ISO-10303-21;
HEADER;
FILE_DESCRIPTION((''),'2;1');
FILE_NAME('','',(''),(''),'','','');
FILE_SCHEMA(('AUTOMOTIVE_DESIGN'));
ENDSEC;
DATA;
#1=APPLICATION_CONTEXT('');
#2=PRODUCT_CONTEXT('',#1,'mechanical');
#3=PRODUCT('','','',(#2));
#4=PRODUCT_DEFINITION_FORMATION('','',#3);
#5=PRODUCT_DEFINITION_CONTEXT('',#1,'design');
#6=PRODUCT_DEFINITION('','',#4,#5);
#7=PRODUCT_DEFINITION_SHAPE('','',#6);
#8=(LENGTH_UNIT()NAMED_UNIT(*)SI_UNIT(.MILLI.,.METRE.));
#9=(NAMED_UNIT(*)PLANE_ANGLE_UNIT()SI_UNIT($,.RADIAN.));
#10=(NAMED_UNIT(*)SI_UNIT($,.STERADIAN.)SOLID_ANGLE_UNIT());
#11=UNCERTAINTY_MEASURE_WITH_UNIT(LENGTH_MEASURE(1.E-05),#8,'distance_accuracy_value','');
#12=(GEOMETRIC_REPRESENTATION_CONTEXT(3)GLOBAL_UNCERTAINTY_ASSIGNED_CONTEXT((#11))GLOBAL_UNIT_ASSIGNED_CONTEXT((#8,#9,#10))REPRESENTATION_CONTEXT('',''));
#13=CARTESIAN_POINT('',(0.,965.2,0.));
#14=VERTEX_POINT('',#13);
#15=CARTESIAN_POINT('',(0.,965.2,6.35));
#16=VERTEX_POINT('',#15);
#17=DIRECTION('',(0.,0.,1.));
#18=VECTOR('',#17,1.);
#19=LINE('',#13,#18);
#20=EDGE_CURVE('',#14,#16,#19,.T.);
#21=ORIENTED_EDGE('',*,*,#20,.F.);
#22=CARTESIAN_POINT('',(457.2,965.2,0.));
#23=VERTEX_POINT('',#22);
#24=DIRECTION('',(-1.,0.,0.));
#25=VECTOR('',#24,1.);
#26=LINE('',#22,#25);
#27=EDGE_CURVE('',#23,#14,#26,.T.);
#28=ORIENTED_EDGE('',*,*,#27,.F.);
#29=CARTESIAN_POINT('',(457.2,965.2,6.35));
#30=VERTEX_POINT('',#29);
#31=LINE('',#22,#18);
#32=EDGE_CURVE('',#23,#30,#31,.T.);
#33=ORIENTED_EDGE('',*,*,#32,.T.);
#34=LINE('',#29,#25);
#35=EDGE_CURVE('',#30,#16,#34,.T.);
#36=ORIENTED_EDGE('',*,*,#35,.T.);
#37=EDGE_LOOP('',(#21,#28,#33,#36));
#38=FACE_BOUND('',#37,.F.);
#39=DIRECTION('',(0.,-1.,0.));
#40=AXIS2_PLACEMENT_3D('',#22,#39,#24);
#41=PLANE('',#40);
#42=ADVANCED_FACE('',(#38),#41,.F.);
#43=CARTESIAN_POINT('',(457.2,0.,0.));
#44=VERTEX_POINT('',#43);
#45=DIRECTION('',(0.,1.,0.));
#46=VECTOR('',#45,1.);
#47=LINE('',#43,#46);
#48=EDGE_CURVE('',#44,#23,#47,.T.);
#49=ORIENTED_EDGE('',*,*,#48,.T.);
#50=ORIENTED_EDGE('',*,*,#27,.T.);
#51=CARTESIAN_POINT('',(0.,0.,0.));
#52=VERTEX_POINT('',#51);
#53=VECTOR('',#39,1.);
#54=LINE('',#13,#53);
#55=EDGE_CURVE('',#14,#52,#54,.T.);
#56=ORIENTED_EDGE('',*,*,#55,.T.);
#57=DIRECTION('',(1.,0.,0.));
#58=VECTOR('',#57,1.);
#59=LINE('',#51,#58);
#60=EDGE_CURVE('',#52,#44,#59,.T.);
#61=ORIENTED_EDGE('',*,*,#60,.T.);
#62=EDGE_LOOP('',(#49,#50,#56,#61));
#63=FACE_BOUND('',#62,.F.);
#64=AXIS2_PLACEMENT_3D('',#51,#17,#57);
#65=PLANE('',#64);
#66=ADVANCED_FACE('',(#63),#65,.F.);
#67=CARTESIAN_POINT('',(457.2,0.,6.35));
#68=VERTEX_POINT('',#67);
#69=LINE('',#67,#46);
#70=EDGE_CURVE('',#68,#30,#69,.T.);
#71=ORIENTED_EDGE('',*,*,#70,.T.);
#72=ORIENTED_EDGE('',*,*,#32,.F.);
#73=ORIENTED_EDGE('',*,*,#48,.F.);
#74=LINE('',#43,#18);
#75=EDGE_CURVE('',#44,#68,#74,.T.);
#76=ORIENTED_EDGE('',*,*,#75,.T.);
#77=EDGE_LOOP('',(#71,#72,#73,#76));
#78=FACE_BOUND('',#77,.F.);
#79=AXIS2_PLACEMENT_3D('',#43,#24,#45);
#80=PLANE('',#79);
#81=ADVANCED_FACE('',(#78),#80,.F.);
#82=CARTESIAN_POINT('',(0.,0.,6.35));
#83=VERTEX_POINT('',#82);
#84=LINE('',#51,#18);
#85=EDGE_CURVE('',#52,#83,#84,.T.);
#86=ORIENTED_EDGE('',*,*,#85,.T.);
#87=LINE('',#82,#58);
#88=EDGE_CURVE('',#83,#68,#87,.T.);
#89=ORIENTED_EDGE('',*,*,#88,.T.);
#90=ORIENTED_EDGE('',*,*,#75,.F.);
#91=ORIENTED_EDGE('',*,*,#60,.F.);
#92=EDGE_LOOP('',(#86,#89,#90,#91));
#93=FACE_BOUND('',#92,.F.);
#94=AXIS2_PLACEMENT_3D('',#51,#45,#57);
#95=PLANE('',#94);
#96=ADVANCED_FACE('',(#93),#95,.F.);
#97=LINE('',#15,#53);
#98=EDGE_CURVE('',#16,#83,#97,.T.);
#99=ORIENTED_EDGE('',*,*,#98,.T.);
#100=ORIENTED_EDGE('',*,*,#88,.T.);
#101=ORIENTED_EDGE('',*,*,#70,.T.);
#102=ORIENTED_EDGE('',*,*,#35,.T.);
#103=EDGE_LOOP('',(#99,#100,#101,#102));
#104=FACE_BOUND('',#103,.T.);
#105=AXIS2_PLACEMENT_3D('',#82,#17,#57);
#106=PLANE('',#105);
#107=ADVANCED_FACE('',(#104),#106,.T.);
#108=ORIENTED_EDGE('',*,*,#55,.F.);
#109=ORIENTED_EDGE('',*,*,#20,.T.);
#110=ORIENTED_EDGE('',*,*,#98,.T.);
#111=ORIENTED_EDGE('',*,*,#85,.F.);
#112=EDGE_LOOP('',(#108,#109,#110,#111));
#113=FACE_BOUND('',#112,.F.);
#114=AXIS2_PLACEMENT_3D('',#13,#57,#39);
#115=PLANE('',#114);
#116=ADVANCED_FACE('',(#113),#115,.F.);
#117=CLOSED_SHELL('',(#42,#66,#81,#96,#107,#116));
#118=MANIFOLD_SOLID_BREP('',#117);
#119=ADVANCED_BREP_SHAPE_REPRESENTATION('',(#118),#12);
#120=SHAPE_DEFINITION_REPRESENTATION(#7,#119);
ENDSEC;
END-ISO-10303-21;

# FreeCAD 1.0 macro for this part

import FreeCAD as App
import Part
import Sketcher

V = App.Vector
Q = App.Units.Quantity


def add_polygon(sketch, points):
    """Adds a closed chain of lines whose ends are joined by coincident constraints."""
    first, n = sketch.GeometryCount, len(points)
    for a, b in zip(points, points[1:] + points[:1]):
        sketch.addGeometry(Part.LineSegment(App.Vector(*a, 0), App.Vector(*b, 0)), False)
    for i in range(n):
        sketch.addConstraint(Sketcher.Constraint("Coincident", first + i, 2, first + (i + 1) % n, 1))

doc = App.newDocument("Part")
body = doc.addObject("PartDesign::Body", "Body")

sketch1 = body.newObject("Sketcher::SketchObject", "Sketch")
sketch1.AttachmentSupport = (doc.getObject("XY_Plane"), [""])
sketch1.MapMode = "FlatFace"
add_polygon(sketch1, [(0, 965), (0, 0), (457, 0), (457, 965)])
sketch1.addConstraint(Sketcher.Constraint("Vertical", 0))
sketch1.addConstraint(Sketcher.Constraint("Horizontal", 1))
sketch1.addConstraint(Sketcher.Constraint("Vertical", 2))
sketch1.addConstraint(Sketcher.Constraint("Horizontal", 3))
sketch1.addConstraint(Sketcher.Constraint("Coincident", 0, 2, -1, 1))
sketch1.addConstraint(Sketcher.Constraint("DistanceX", 1, 1, 1, 2, Q("18 in")))
sketch1.addConstraint(Sketcher.Constraint("DistanceY", 0, 2, 0, 1, Q("38 in")))
pad1 = body.newObject("PartDesign::Pad", "Pad")
pad1.Profile = sketch1
pad1.Length = Q("0.25 in")

doc.recompute()
